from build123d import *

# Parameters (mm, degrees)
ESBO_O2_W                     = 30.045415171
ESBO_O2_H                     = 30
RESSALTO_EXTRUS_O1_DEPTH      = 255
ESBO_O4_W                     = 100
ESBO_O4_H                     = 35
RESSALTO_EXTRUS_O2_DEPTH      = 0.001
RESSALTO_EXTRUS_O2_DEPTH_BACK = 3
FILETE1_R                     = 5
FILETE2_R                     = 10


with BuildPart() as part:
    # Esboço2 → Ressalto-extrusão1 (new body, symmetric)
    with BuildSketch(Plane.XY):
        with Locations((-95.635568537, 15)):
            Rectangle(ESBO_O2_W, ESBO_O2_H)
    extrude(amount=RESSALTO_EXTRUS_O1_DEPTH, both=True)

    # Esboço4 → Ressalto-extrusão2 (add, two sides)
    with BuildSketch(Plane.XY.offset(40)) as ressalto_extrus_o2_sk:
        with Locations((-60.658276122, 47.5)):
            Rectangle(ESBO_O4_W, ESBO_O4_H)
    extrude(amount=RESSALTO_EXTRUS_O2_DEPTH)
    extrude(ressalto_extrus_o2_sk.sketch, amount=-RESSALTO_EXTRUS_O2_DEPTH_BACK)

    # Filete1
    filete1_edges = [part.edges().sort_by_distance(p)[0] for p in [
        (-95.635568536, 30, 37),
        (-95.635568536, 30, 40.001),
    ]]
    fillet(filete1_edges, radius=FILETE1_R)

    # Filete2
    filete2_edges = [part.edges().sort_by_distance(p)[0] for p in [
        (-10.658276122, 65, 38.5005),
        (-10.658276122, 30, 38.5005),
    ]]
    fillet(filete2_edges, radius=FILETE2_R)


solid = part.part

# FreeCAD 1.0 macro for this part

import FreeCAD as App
import Part
import Sketcher
from FreeCAD import Vector


def edges_at(feature, points):
    """Names of the edges that pass closest to the given points."""
    edges = feature.Shape.Edges
    near = lambda p: min(range(len(edges)), key=lambda i: edges[i].distToShape(Part.Vertex(*p))[0])
    return sorted({f"Edge{near(p) + 1}" for p in points})


def add_polygon(sketch, points):
    """Adds a closed chain of lines whose ends are joined by coincident constraints."""
    first, n = sketch.GeometryCount, len(points)
    for a, b in zip(points, points[1:] + points[:1]):
        sketch.addGeometry(Part.LineSegment(App.Vector(*a, 0), App.Vector(*b, 0)), False)
    for i in range(n):
        sketch.addConstraint(Sketcher.Constraint("Coincident", first + i, 2, first + (i + 1) % n, 1))

doc = App.newDocument("Part")
params = doc.addObject("Spreadsheet::Sheet", "Params")
for row, (alias, value) in enumerate([
    ("sketch1_height", "30 mm"),
    ("pad1_length", "510 mm"),
    ("sketch2_width", "100 mm"),
    ("sketch2_height", "35 mm"),
    ("pad2_length", "0.001 mm"),
    ("pad2_length2", "3 mm"),
    ("fillet_radius", "5 mm"),
    ("fillet2_radius", "10 mm"),
], start=1):
    params.set(f"A{row}", alias)
    params.set(f"B{row}", "=" + value)
    params.setAlias(f"B{row}", alias)

body = doc.addObject("PartDesign::Body", "Body")

sketch1 = doc.addObject("Sketcher::SketchObject", "Sketch")
body.addObject(sketch1)
sketch1.AttachmentSupport = (doc.XY_Plane, [""])
sketch1.MapMode = "FlatFace"
add_polygon(sketch1, [(-111, 30), (-111, 0), (-81, 0), (-81, 30)])
sketch1.addConstraint([
    Sketcher.Constraint("Vertical", 0),
    Sketcher.Constraint("Horizontal", 1),
    Sketcher.Constraint("Vertical", 2),
    Sketcher.Constraint("Horizontal", 3),
    Sketcher.Constraint("PointOnObject", 0, 2, -1),
    Sketcher.Constraint("DistanceY", 0, 2, 0, 1, 30.0),
    Sketcher.Constraint("DistanceX", 1, 1, 1, 2, 30.045415),
    Sketcher.Constraint("DistanceX", 1, 2, -1, 1, 80.612861),
])
sketch1.setExpression("Constraints[9]", "Params.sketch1_height")
pad1 = doc.addObject("PartDesign::Pad", "Pad")
body.addObject(pad1)
pad1.Profile = sketch1
pad1.setExpression("Length", "Params.pad1_length")
pad1.Midplane = True

sketch2 = doc.addObject("Sketcher::SketchObject", "Sketch001")
body.addObject(sketch2)
sketch2.AttachmentSupport = (doc.XY_Plane, [""])
sketch2.MapMode = "FlatFace"
sketch2.AttachmentOffset = App.Placement(Vector(0, 0, 40), App.Rotation())
add_polygon(sketch2, [(-111, 65), (-111, 30), (-11, 30), (-11, 65)])
sketch2.addConstraint([
    Sketcher.Constraint("Vertical", 0),
    Sketcher.Constraint("Horizontal", 1),
    Sketcher.Constraint("Vertical", 2),
    Sketcher.Constraint("Horizontal", 3),
    Sketcher.Constraint("DistanceX", 1, 1, 1, 2, 100.0),
    Sketcher.Constraint("DistanceY", 0, 2, 0, 1, 35.0),
    Sketcher.Constraint("DistanceY", -1, 1, 0, 2, 30.0),
    Sketcher.Constraint("DistanceX", 0, 2, -1, 1, 110.658276),
])
sketch2.setExpression("Constraints[8]", "Params.sketch2_width")
sketch2.setExpression("Constraints[9]", "Params.sketch2_height")
pad2 = doc.addObject("PartDesign::Pad", "Pad001")
body.addObject(pad2)
pad2.Profile = sketch2
pad2.Type = "TwoLengths"
pad2.setExpression("Length", "Params.pad2_length")
pad2.setExpression("Length2", "Params.pad2_length2")
doc.recompute()

fillet = doc.addObject("PartDesign::Fillet", "Fillet")
body.addObject(fillet)
fillet.Base = (pad2, edges_at(pad2, [(-95.636, 30, 37), (-95.636, 30, 40.001)]))
fillet.setExpression("Radius", "Params.fillet_radius")
doc.recompute()

fillet2 = doc.addObject("PartDesign::Fillet", "Fillet001")
body.addObject(fillet2)
fillet2.Base = (fillet, edges_at(fillet, [(-10.658, 65, 38.501), (-10.658, 30, 38.501)]))
fillet2.setExpression("Radius", "Params.fillet2_radius")

doc.recompute()
